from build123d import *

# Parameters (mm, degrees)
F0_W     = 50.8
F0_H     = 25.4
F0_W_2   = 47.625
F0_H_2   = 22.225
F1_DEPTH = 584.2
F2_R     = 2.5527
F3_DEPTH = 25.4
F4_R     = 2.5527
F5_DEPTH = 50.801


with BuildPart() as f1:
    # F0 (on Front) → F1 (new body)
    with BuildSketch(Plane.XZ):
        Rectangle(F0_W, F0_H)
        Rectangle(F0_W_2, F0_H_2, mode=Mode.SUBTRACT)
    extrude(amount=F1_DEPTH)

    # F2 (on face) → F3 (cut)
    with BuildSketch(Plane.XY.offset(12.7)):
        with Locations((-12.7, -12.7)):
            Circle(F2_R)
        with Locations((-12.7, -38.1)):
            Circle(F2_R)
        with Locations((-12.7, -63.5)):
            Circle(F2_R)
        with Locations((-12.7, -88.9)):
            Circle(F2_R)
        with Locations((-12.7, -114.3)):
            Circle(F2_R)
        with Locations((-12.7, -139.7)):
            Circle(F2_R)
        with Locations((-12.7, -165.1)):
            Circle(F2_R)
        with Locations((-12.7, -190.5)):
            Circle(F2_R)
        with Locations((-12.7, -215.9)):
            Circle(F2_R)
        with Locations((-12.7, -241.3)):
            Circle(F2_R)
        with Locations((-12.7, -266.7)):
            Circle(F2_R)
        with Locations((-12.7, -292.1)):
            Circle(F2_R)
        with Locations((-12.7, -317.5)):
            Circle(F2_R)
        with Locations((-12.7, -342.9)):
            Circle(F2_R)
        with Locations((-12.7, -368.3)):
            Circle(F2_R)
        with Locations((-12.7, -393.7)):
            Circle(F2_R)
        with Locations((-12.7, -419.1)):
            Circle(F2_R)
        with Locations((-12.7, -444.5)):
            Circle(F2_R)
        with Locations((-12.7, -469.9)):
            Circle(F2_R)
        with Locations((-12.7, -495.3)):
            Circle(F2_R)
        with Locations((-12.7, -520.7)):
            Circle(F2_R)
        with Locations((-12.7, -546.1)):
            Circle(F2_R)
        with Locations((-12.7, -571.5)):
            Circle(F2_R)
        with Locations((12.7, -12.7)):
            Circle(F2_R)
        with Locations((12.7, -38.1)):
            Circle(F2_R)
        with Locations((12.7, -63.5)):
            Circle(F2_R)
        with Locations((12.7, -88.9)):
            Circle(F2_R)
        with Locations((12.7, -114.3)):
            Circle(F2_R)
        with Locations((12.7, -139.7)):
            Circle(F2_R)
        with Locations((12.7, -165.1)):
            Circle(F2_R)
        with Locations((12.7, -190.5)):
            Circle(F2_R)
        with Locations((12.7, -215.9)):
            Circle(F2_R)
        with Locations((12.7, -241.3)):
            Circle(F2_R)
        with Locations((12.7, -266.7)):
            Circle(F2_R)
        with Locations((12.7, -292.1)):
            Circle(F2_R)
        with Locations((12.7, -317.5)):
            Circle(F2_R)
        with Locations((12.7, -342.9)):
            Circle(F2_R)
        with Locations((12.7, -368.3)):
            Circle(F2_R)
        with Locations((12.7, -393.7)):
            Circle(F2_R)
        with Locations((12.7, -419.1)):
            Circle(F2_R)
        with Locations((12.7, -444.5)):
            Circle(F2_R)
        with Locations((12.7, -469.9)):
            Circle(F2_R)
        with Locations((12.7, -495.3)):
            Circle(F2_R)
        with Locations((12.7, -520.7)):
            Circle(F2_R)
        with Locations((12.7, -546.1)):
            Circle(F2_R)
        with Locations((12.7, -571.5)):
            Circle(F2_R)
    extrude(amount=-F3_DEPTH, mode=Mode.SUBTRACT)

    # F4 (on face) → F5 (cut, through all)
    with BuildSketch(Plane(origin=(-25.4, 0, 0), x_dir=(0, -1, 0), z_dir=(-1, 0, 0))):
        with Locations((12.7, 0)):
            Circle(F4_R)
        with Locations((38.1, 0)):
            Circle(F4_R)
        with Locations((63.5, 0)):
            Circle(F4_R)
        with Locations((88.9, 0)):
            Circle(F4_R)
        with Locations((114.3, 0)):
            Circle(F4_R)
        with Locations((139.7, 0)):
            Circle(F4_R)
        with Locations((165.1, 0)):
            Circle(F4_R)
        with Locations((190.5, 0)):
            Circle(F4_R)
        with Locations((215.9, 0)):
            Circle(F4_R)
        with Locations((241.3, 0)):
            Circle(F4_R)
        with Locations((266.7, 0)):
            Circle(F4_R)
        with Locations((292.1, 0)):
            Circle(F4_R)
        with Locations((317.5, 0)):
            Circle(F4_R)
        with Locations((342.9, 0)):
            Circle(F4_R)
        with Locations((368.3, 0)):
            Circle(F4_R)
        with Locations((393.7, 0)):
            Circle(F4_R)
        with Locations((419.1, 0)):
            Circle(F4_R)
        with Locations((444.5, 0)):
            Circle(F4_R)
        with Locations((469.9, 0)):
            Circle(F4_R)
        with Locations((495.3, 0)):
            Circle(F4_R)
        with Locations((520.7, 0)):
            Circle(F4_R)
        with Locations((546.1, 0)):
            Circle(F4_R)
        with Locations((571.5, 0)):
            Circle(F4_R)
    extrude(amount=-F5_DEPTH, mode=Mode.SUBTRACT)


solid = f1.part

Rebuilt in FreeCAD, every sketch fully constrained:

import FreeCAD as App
import Part
import Sketcher
from FreeCAD import Vector
Q = App.Units.Quantity


def add_polygon(sketch, points):
    """Adds a closed chain of lines whose ends are joined by coincident constraints."""
    first, n = sketch.GeometryCount, len(points)
    for a, b in zip(points, points[1:] + points[:1]):
        sketch.addGeometry(Part.LineSegment(App.Vector(*a, 0), App.Vector(*b, 0)), False)
    for i in range(n):
        sketch.addConstraint(Sketcher.Constraint("Coincident", first + i, 2, first + (i + 1) % n, 1))

doc = App.newDocument("Part")
params = doc.addObject("Spreadsheet::Sheet", "Params")
for row, (alias, value) in enumerate([
    ("sketch1_width", "2 in"),
    ("sketch1_height", "1 in"),
    ("sketch1_width2", "1.875 in"),
    ("sketch1_height2", "0.875 in"),
    ("pad1_length", "23 in"),
    ("sketch2_diameter", "0.201 in"),
    ("pocket1_length", "1 in"),
    ("sketch3_diameter", "0.201 in"),
], start=1):
    params.set(f"A{row}", alias)
    params.set(f"B{row}", "=" + value)
    params.setAlias(f"B{row}", alias)

body = doc.addObject("PartDesign::Body", "Body")

# Sketch on XZ plane
sketch1 = body.newObject("Sketcher::SketchObject", "Sketch")
sketch1.AttachmentSupport = (doc.getObject("XZ_Plane"), [""])
sketch1.MapMode = "FlatFace"
add_polygon(sketch1, [(-25, 13), (-25, -13), (25, -13), (25, 13)])  # lines 0-3
add_polygon(sketch1, [(24, -11), (-24, -11), (-24, 11), (24, 11)])  # lines 4-7
sketch1.addConstraint([
    Sketcher.Constraint("Vertical", 0),
    Sketcher.Constraint("Horizontal", 1),
    Sketcher.Constraint("Vertical", 2),
    Sketcher.Constraint("Horizontal", 3),
    Sketcher.Constraint("Horizontal", 4),
    Sketcher.Constraint("Vertical", 5),
    Sketcher.Constraint("Horizontal", 6),
    Sketcher.Constraint("Vertical", 7),
    Sketcher.Constraint("Symmetric", 0, 2, 2, 2, -1, 1),
    Sketcher.Constraint("Symmetric", 4, 2, 6, 2, -1, 1),
    Sketcher.Constraint("DistanceX", 1, 1, 1, 2, Q("2 in")),
    Sketcher.Constraint("DistanceY", 0, 2, 0, 1, Q("1 in")),
    Sketcher.Constraint("DistanceX", 4, 2, 4, 1, Q("1.875 in")),
    Sketcher.Constraint("DistanceY", 5, 1, 5, 2, Q("0.875 in")),
])
sketch1.setExpression("Constraints[18]", "Params.sketch1_width")
sketch1.setExpression("Constraints[19]", "Params.sketch1_height")
sketch1.setExpression("Constraints[20]", "Params.sketch1_width2")
sketch1.setExpression("Constraints[21]", "Params.sketch1_height2")
pad1 = body.newObject("PartDesign::Pad", "Pad")
pad1.Profile = sketch1
pad1.setExpression("Length", "Params.pad1_length")

# Sketch on XY plane
sketch2 = body.newObject("Sketcher::SketchObject", "Sketch001")
sketch2.AttachmentSupport = (doc.getObject("XY_Plane"), [""])
sketch2.MapMode = "FlatFace"
sketch2.AttachmentOffset = App.Placement(Vector(0, 0, 0.5 * 25.4), App.Rotation())
sketch2.addGeometry([
    Part.Circle(Vector(-12.7, -12.7, 0), Vector(0, 0, 1), 2.6),  # 0
    Part.Circle(Vector(-12.7, -38.1, 0), Vector(0, 0, 1), 2.6),  # 1
    Part.Circle(Vector(-12.7, -63.5, 0), Vector(0, 0, 1), 2.6),  # 2
    Part.Circle(Vector(-12.7, -88.9, 0), Vector(0, 0, 1), 2.6),  # 3
    Part.Circle(Vector(-12.7, -114.3, 0), Vector(0, 0, 1), 2.6),  # 4
    Part.Circle(Vector(-12.7, -139.7, 0), Vector(0, 0, 1), 2.6),  # 5
    Part.Circle(Vector(-12.7, -165.1, 0), Vector(0, 0, 1), 2.6),  # 6
    Part.Circle(Vector(-12.7, -190.5, 0), Vector(0, 0, 1), 2.6),  # 7
    Part.Circle(Vector(-12.7, -215.9, 0), Vector(0, 0, 1), 2.6),  # 8
    Part.Circle(Vector(-12.7, -241.3, 0), Vector(0, 0, 1), 2.6),  # 9
    Part.Circle(Vector(-12.7, -266.7, 0), Vector(0, 0, 1), 2.6),  # 10
    Part.Circle(Vector(-12.7, -292.1, 0), Vector(0, 0, 1), 2.6),  # 11
    Part.Circle(Vector(-12.7, -317.5, 0), Vector(0, 0, 1), 2.6),  # 12
    Part.Circle(Vector(-12.7, -342.9, 0), Vector(0, 0, 1), 2.6),  # 13
    Part.Circle(Vector(-12.7, -368.3, 0), Vector(0, 0, 1), 2.6),  # 14
    Part.Circle(Vector(-12.7, -393.7, 0), Vector(0, 0, 1), 2.6),  # 15
    Part.Circle(Vector(-12.7, -419.1, 0), Vector(0, 0, 1), 2.6),  # 16
    Part.Circle(Vector(-12.7, -444.5, 0), Vector(0, 0, 1), 2.6),  # 17
    Part.Circle(Vector(-12.7, -469.9, 0), Vector(0, 0, 1), 2.6),  # 18
    Part.Circle(Vector(-12.7, -495.3, 0), Vector(0, 0, 1), 2.6),  # 19
    Part.Circle(Vector(-12.7, -520.7, 0), Vector(0, 0, 1), 2.6),  # 20
    Part.Circle(Vector(-12.7, -546.1, 0), Vector(0, 0, 1), 2.6),  # 21
    Part.Circle(Vector(-12.7, -571.5, 0), Vector(0, 0, 1), 2.6),  # 22
    Part.Circle(Vector(12.7, -12.7, 0), Vector(0, 0, 1), 2.6),  # 23
    Part.Circle(Vector(12.7, -38.1, 0), Vector(0, 0, 1), 2.6),  # 24
    Part.Circle(Vector(12.7, -63.5, 0), Vector(0, 0, 1), 2.6),  # 25
    Part.Circle(Vector(12.7, -88.9, 0), Vector(0, 0, 1), 2.6),  # 26
    Part.Circle(Vector(12.7, -114.3, 0), Vector(0, 0, 1), 2.6),  # 27
    Part.Circle(Vector(12.7, -139.7, 0), Vector(0, 0, 1), 2.6),  # 28
    Part.Circle(Vector(12.7, -165.1, 0), Vector(0, 0, 1), 2.6),  # 29
    Part.Circle(Vector(12.7, -190.5, 0), Vector(0, 0, 1), 2.6),  # 30
    Part.Circle(Vector(12.7, -215.9, 0), Vector(0, 0, 1), 2.6),  # 31
    Part.Circle(Vector(12.7, -241.3, 0), Vector(0, 0, 1), 2.6),  # 32
    Part.Circle(Vector(12.7, -266.7, 0), Vector(0, 0, 1), 2.6),  # 33
    Part.Circle(Vector(12.7, -292.1, 0), Vector(0, 0, 1), 2.6),  # 34
    Part.Circle(Vector(12.7, -317.5, 0), Vector(0, 0, 1), 2.6),  # 35
    Part.Circle(Vector(12.7, -342.9, 0), Vector(0, 0, 1), 2.6),  # 36
    Part.Circle(Vector(12.7, -368.3, 0), Vector(0, 0, 1), 2.6),  # 37
    Part.Circle(Vector(12.7, -393.7, 0), Vector(0, 0, 1), 2.6),  # 38
    Part.Circle(Vector(12.7, -419.1, 0), Vector(0, 0, 1), 2.6),  # 39
    Part.Circle(Vector(12.7, -444.5, 0), Vector(0, 0, 1), 2.6),  # 40
    Part.Circle(Vector(12.7, -469.9, 0), Vector(0, 0, 1), 2.6),  # 41
    Part.Circle(Vector(12.7, -495.3, 0), Vector(0, 0, 1), 2.6),  # 42
    Part.Circle(Vector(12.7, -520.7, 0), Vector(0, 0, 1), 2.6),  # 43
    Part.Circle(Vector(12.7, -546.1, 0), Vector(0, 0, 1), 2.6),  # 44
    Part.Circle(Vector(12.7, -571.5, 0), Vector(0, 0, 1), 2.6),  # 45
], False)
sketch2.addConstraint([
    Sketcher.Constraint("Equal", 0, 1),
    Sketcher.Constraint("Equal", 1, 2),
    Sketcher.Constraint("Equal", 2, 3),
    Sketcher.Constraint("Equal", 3, 4),
    Sketcher.Constraint("Equal", 4, 5),
    Sketcher.Constraint("Equal", 5, 6),
    Sketcher.Constraint("Equal", 6, 7),
    Sketcher.Constraint("Equal", 7, 8),
    Sketcher.Constraint("Equal", 8, 9),
    Sketcher.Constraint("Equal", 9, 10),
    Sketcher.Constraint("Equal", 10, 11),
    Sketcher.Constraint("Equal", 11, 12),
    Sketcher.Constraint("Equal", 12, 13),
    Sketcher.Constraint("Equal", 13, 14),
    Sketcher.Constraint("Equal", 14, 15),
    Sketcher.Constraint("Equal", 15, 16),
    Sketcher.Constraint("Equal", 16, 17),
    Sketcher.Constraint("Equal", 17, 18),
    Sketcher.Constraint("Equal", 18, 19),
    Sketcher.Constraint("Equal", 19, 20),
    Sketcher.Constraint("Equal", 20, 21),
    Sketcher.Constraint("Equal", 21, 22),
    Sketcher.Constraint("Equal", 22, 23),
    Sketcher.Constraint("Equal", 23, 24),
    Sketcher.Constraint("Equal", 24, 25),
    Sketcher.Constraint("Equal", 25, 26),
    Sketcher.Constraint("Equal", 26, 27),
    Sketcher.Constraint("Equal", 27, 28),
    Sketcher.Constraint("Equal", 28, 29),
    Sketcher.Constraint("Equal", 29, 30),
    Sketcher.Constraint("Equal", 30, 31),
    Sketcher.Constraint("Equal", 31, 32),
    Sketcher.Constraint("Equal", 32, 33),
    Sketcher.Constraint("Equal", 33, 34),
    Sketcher.Constraint("Equal", 34, 35),
    Sketcher.Constraint("Equal", 35, 36),
    Sketcher.Constraint("Equal", 36, 37),
    Sketcher.Constraint("Equal", 37, 38),
    Sketcher.Constraint("Equal", 38, 39),
    Sketcher.Constraint("Equal", 39, 40),
    Sketcher.Constraint("Equal", 40, 41),
    Sketcher.Constraint("Equal", 41, 42),
    Sketcher.Constraint("Equal", 42, 43),
    Sketcher.Constraint("Equal", 43, 44),
    Sketcher.Constraint("Equal", 44, 45),
    Sketcher.Constraint("Symmetric", 0, 3, 23, 3, -2),
    Sketcher.Constraint("Symmetric", 1, 3, 24, 3, -2),
    Sketcher.Constraint("Symmetric", 2, 3, 25, 3, -2),
    Sketcher.Constraint("Symmetric", 3, 3, 26, 3, -2),
    Sketcher.Constraint("Symmetric", 4, 3, 27, 3, -2),
    Sketcher.Constraint("Symmetric", 5, 3, 28, 3, -2),
    Sketcher.Constraint("Symmetric", 6, 3, 29, 3, -2),
    Sketcher.Constraint("Symmetric", 7, 3, 30, 3, -2),
    Sketcher.Constraint("Symmetric", 8, 3, 31, 3, -2),
    Sketcher.Constraint("Symmetric", 9, 3, 32, 3, -2),
    Sketcher.Constraint("Symmetric", 10, 3, 33, 3, -2),
    Sketcher.Constraint("Symmetric", 11, 3, 34, 3, -2),
    Sketcher.Constraint("Symmetric", 12, 3, 35, 3, -2),
    Sketcher.Constraint("Symmetric", 13, 3, 36, 3, -2),
    Sketcher.Constraint("Symmetric", 14, 3, 37, 3, -2),
    Sketcher.Constraint("Symmetric", 15, 3, 38, 3, -2),
    Sketcher.Constraint("Symmetric", 16, 3, 39, 3, -2),
    Sketcher.Constraint("Symmetric", 17, 3, 40, 3, -2),
    Sketcher.Constraint("Symmetric", 18, 3, 41, 3, -2),
    Sketcher.Constraint("Symmetric", 19, 3, 42, 3, -2),
    Sketcher.Constraint("Symmetric", 20, 3, 43, 3, -2),
    Sketcher.Constraint("Symmetric", 21, 3, 44, 3, -2),
    Sketcher.Constraint("Symmetric", 22, 3, 45, 3, -2),
    Sketcher.Constraint("Vertical", 0, 3, 1, 3),
    Sketcher.Constraint("Vertical", 1, 3, 2, 3),
    Sketcher.Constraint("Vertical", 2, 3, 3, 3),
    Sketcher.Constraint("Vertical", 3, 3, 4, 3),
    Sketcher.Constraint("Vertical", 4, 3, 5, 3),
    Sketcher.Constraint("Vertical", 5, 3, 6, 3),
    Sketcher.Constraint("Vertical", 6, 3, 7, 3),
    Sketcher.Constraint("Vertical", 7, 3, 8, 3),
    Sketcher.Constraint("Vertical", 8, 3, 9, 3),
    Sketcher.Constraint("Vertical", 9, 3, 10, 3),
    Sketcher.Constraint("Vertical", 10, 3, 11, 3),
    Sketcher.Constraint("Vertical", 11, 3, 12, 3),
    Sketcher.Constraint("Vertical", 12, 3, 13, 3),
    Sketcher.Constraint("Vertical", 13, 3, 14, 3),
    Sketcher.Constraint("Vertical", 14, 3, 15, 3),
    Sketcher.Constraint("Vertical", 15, 3, 16, 3),
    Sketcher.Constraint("Vertical", 16, 3, 17, 3),
    Sketcher.Constraint("Vertical", 17, 3, 18, 3),
    Sketcher.Constraint("Vertical", 18, 3, 19, 3),
    Sketcher.Constraint("Vertical", 19, 3, 20, 3),
    Sketcher.Constraint("Vertical", 20, 3, 21, 3),
    Sketcher.Constraint("Vertical", 21, 3, 22, 3),
    Sketcher.Constraint("Diameter", 0, Q("0.201 in")),
    Sketcher.Constraint("DistanceY", 1, 3, 0, 3, Q("1 in")),
    Sketcher.Constraint("DistanceY", 2, 3, 1, 3, Q("1 in")),
    Sketcher.Constraint("DistanceY", 3, 3, 2, 3, Q("1 in")),
    Sketcher.Constraint("DistanceY", 4, 3, 3, 3, Q("1 in")),
    Sketcher.Constraint("DistanceY", 5, 3, 4, 3, Q("1 in")),
    Sketcher.Constraint("DistanceY", 6, 3, 5, 3, Q("1 in")),
    Sketcher.Constraint("DistanceY", 7, 3, 6, 3, Q("1 in")),
    Sketcher.Constraint("DistanceY", 8, 3, 7, 3, Q("1 in")),
    Sketcher.Constraint("DistanceY", 9, 3, 8, 3, Q("1 in")),
    Sketcher.Constraint("DistanceY", 10, 3, 9, 3, Q("1 in")),
    Sketcher.Constraint("DistanceY", 11, 3, 10, 3, Q("1 in")),
    Sketcher.Constraint("DistanceY", 12, 3, 11, 3, Q("1 in")),
    Sketcher.Constraint("DistanceY", 13, 3, 12, 3, Q("1 in")),
    Sketcher.Constraint("DistanceY", 14, 3, 13, 3, Q("1 in")),
    Sketcher.Constraint("DistanceY", 15, 3, 14, 3, Q("1 in")),
    Sketcher.Constraint("DistanceY", 16, 3, 15, 3, Q("1 in")),
    Sketcher.Constraint("DistanceY", 17, 3, 16, 3, Q("1 in")),
    Sketcher.Constraint("DistanceY", 18, 3, 17, 3, Q("1 in")),
    Sketcher.Constraint("DistanceY", 19, 3, 18, 3, Q("1 in")),
    Sketcher.Constraint("DistanceY", 20, 3, 19, 3, Q("1 in")),
    Sketcher.Constraint("DistanceY", 21, 3, 20, 3, Q("1 in")),
    Sketcher.Constraint("DistanceY", 22, 3, 21, 3, Q("1 in")),
    Sketcher.Constraint("DistanceX", 0, 3, 23, 3, Q("1 in")),
    Sketcher.Constraint("DistanceY", 0, 3, -1, 1, Q("0.5 in")),
])
sketch2.setExpression("Constraints[90]", "Params.sketch2_diameter")
pocket1 = body.newObject("PartDesign::Pocket", "Pocket")
pocket1.Profile = sketch2
pocket1.setExpression("Length", "Params.pocket1_length")

# Sketch on YZ plane
sketch3 = body.newObject("Sketcher::SketchObject", "Sketch002")
sketch3.AttachmentSupport = (doc.getObject("YZ_Plane"), [""])
sketch3.MapMode = "FlatFace"
sketch3.AttachmentOffset = App.Placement(Vector(0, 0, -1 * 25.4), App.Rotation())
sketch3.addGeometry([
    Part.Circle(Vector(-12.7, 0, 0), Vector(0, 0, 1), 2.6),  # 0
    Part.Circle(Vector(-38.1, 0, 0), Vector(0, 0, 1), 2.6),  # 1
    Part.Circle(Vector(-63.5, 0, 0), Vector(0, 0, 1), 2.6),  # 2
    Part.Circle(Vector(-88.9, 0, 0), Vector(0, 0, 1), 2.6),  # 3
    Part.Circle(Vector(-114.3, 0, 0), Vector(0, 0, 1), 2.6),  # 4
    Part.Circle(Vector(-139.7, 0, 0), Vector(0, 0, 1), 2.6),  # 5
    Part.Circle(Vector(-165.1, 0, 0), Vector(0, 0, 1), 2.6),  # 6
    Part.Circle(Vector(-190.5, 0, 0), Vector(0, 0, 1), 2.6),  # 7
    Part.Circle(Vector(-215.9, 0, 0), Vector(0, 0, 1), 2.6),  # 8
    Part.Circle(Vector(-241.3, 0, 0), Vector(0, 0, 1), 2.6),  # 9
    Part.Circle(Vector(-266.7, 0, 0), Vector(0, 0, 1), 2.6),  # 10
    Part.Circle(Vector(-292.1, 0, 0), Vector(0, 0, 1), 2.6),  # 11
    Part.Circle(Vector(-317.5, 0, 0), Vector(0, 0, 1), 2.6),  # 12
    Part.Circle(Vector(-342.9, 0, 0), Vector(0, 0, 1), 2.6),  # 13
    Part.Circle(Vector(-368.3, 0, 0), Vector(0, 0, 1), 2.6),  # 14
    Part.Circle(Vector(-393.7, 0, 0), Vector(0, 0, 1), 2.6),  # 15
    Part.Circle(Vector(-419.1, 0, 0), Vector(0, 0, 1), 2.6),  # 16
    Part.Circle(Vector(-444.5, 0, 0), Vector(0, 0, 1), 2.6),  # 17
    Part.Circle(Vector(-469.9, 0, 0), Vector(0, 0, 1), 2.6),  # 18
    Part.Circle(Vector(-495.3, 0, 0), Vector(0, 0, 1), 2.6),  # 19
    Part.Circle(Vector(-520.7, 0, 0), Vector(0, 0, 1), 2.6),  # 20
    Part.Circle(Vector(-546.1, 0, 0), Vector(0, 0, 1), 2.6),  # 21
    Part.Circle(Vector(-571.5, 0, 0), Vector(0, 0, 1), 2.6),  # 22
], False)
sketch3.addConstraint([
    Sketcher.Constraint("Equal", 0, 1),
    Sketcher.Constraint("Equal", 1, 2),
    Sketcher.Constraint("Equal", 2, 3),
    Sketcher.Constraint("Equal", 3, 4),
    Sketcher.Constraint("Equal", 4, 5),
    Sketcher.Constraint("Equal", 5, 6),
    Sketcher.Constraint("Equal", 6, 7),
    Sketcher.Constraint("Equal", 7, 8),
    Sketcher.Constraint("Equal", 8, 9),
    Sketcher.Constraint("Equal", 9, 10),
    Sketcher.Constraint("Equal", 10, 11),
    Sketcher.Constraint("Equal", 11, 12),
    Sketcher.Constraint("Equal", 12, 13),
    Sketcher.Constraint("Equal", 13, 14),
    Sketcher.Constraint("Equal", 14, 15),
    Sketcher.Constraint("Equal", 15, 16),
    Sketcher.Constraint("Equal", 16, 17),
    Sketcher.Constraint("Equal", 17, 18),
    Sketcher.Constraint("Equal", 18, 19),
    Sketcher.Constraint("Equal", 19, 20),
    Sketcher.Constraint("Equal", 20, 21),
    Sketcher.Constraint("Equal", 21, 22),
    Sketcher.Constraint("PointOnObject", 0, 3, -1),
    Sketcher.Constraint("PointOnObject", 1, 3, -1),
    Sketcher.Constraint("PointOnObject", 2, 3, -1),
    Sketcher.Constraint("PointOnObject", 3, 3, -1),
    Sketcher.Constraint("PointOnObject", 4, 3, -1),
    Sketcher.Constraint("PointOnObject", 5, 3, -1),
    Sketcher.Constraint("PointOnObject", 6, 3, -1),
    Sketcher.Constraint("PointOnObject", 7, 3, -1),
    Sketcher.Constraint("PointOnObject", 8, 3, -1),
    Sketcher.Constraint("PointOnObject", 9, 3, -1),
    Sketcher.Constraint("PointOnObject", 10, 3, -1),
    Sketcher.Constraint("PointOnObject", 11, 3, -1),
    Sketcher.Constraint("PointOnObject", 12, 3, -1),
    Sketcher.Constraint("PointOnObject", 13, 3, -1),
    Sketcher.Constraint("PointOnObject", 14, 3, -1),
    Sketcher.Constraint("PointOnObject", 15, 3, -1),
    Sketcher.Constraint("PointOnObject", 16, 3, -1),
    Sketcher.Constraint("PointOnObject", 17, 3, -1),
    Sketcher.Constraint("PointOnObject", 18, 3, -1),
    Sketcher.Constraint("PointOnObject", 19, 3, -1),
    Sketcher.Constraint("PointOnObject", 20, 3, -1),
    Sketcher.Constraint("PointOnObject", 21, 3, -1),
    Sketcher.Constraint("PointOnObject", 22, 3, -1),
    Sketcher.Constraint("Diameter", 0, Q("0.201 in")),
    Sketcher.Constraint("DistanceX", 1, 3, 0, 3, Q("1 in")),
    Sketcher.Constraint("DistanceX", 2, 3, 1, 3, Q("1 in")),
    Sketcher.Constraint("DistanceX", 3, 3, 2, 3, Q("1 in")),
    Sketcher.Constraint("DistanceX", 4, 3, 3, 3, Q("1 in")),
    Sketcher.Constraint("DistanceX", 5, 3, 4, 3, Q("1 in")),
    Sketcher.Constraint("DistanceX", 6, 3, 5, 3, Q("1 in")),
    Sketcher.Constraint("DistanceX", 7, 3, 6, 3, Q("1 in")),
    Sketcher.Constraint("DistanceX", 8, 3, 7, 3, Q("1 in")),
    Sketcher.Constraint("DistanceX", 9, 3, 8, 3, Q("1 in")),
    Sketcher.Constraint("DistanceX", 10, 3, 9, 3, Q("1 in")),
    Sketcher.Constraint("DistanceX", 11, 3, 10, 3, Q("1 in")),
    Sketcher.Constraint("DistanceX", 12, 3, 11, 3, Q("1 in")),
    Sketcher.Constraint("DistanceX", 13, 3, 12, 3, Q("1 in")),
    Sketcher.Constraint("DistanceX", 14, 3, 13, 3, Q("1 in")),
    Sketcher.Constraint("DistanceX", 15, 3, 14, 3, Q("1 in")),
    Sketcher.Constraint("DistanceX", 16, 3, 15, 3, Q("1 in")),
    Sketcher.Constraint("DistanceX", 17, 3, 16, 3, Q("1 in")),
    Sketcher.Constraint("DistanceX", 18, 3, 17, 3, Q("1 in")),
    Sketcher.Constraint("DistanceX", 19, 3, 18, 3, Q("1 in")),
    Sketcher.Constraint("DistanceX", 20, 3, 19, 3, Q("1 in")),
    Sketcher.Constraint("DistanceX", 21, 3, 20, 3, Q("1 in")),
    Sketcher.Constraint("DistanceX", 22, 3, 21, 3, Q("1 in")),
    Sketcher.Constraint("DistanceX", 0, 3, -1, 1, Q("0.5 in")),
])
sketch3.setExpression("Constraints[45]", "Params.sketch3_diameter")
pocket2 = body.newObject("PartDesign::Pocket", "Pocket001")
pocket2.Profile = sketch3
pocket2.Type = "ThroughAll"
pocket2.Reversed = True

doc.recompute()
